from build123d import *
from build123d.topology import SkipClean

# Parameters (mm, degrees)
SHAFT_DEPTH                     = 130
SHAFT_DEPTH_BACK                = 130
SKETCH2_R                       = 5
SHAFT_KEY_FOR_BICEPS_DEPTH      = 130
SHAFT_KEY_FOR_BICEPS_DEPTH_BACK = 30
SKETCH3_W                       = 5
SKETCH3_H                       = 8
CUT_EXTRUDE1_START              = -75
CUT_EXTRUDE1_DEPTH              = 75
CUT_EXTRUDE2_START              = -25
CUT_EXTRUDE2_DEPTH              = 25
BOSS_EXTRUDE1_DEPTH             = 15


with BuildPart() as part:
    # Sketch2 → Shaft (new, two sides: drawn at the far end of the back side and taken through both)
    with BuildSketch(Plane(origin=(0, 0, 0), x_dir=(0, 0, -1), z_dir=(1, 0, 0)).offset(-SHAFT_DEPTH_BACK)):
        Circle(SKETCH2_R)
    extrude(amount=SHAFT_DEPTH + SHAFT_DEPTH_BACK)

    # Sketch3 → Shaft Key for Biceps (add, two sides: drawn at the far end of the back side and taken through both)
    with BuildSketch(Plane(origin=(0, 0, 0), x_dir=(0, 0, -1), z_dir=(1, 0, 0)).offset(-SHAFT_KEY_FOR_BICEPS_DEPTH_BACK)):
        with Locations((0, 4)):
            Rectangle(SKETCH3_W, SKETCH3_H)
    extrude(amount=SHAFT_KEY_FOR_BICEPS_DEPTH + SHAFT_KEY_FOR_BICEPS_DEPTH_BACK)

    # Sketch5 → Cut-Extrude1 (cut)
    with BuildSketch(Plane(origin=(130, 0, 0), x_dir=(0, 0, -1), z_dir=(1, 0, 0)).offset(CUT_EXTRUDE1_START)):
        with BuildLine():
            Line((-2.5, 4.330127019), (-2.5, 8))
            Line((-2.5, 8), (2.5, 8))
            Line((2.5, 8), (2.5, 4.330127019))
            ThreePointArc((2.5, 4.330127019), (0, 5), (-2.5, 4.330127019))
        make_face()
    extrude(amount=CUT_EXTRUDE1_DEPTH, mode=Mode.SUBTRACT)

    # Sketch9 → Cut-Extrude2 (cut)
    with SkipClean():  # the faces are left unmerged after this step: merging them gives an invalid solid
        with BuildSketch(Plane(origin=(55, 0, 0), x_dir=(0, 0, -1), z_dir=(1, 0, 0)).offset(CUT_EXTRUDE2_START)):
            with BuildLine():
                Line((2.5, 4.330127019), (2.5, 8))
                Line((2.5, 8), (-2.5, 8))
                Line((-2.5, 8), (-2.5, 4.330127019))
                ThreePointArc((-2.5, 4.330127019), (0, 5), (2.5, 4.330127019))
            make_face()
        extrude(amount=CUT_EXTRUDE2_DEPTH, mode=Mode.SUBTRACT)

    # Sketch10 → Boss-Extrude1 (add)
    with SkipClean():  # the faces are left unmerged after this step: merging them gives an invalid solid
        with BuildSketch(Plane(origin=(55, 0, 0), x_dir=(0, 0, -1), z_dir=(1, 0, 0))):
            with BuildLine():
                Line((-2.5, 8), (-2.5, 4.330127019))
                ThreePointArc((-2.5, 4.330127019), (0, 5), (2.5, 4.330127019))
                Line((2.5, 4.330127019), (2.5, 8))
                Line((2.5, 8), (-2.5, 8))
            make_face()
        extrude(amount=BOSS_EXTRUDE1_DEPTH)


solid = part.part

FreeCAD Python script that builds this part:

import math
import FreeCAD as App
import Part
import Sketcher

V = App.Vector


def add_polygon(sketch, points):
    """Adds a closed chain of lines whose ends are joined by coincident constraints."""
    first, n = sketch.GeometryCount, len(points)
    for a, b in zip(points, points[1:] + points[:1]):
        sketch.addGeometry(Part.LineSegment(App.Vector(*a, 0), App.Vector(*b, 0)), False)
    for i in range(n):
        sketch.addConstraint(Sketcher.Constraint("Coincident", first + i, 2, first + (i + 1) % n, 1))

doc = App.newDocument("Part")
params = doc.addObject("Spreadsheet::Sheet", "Params")
for row, (alias, value) in enumerate([
    ("sketch1_diameter", "10 mm"),
    ("pad1_length", "130 mm"),
    ("pad1_length2", "130 mm"),
    ("sketch2_width", "8 mm"),
    ("sketch2_height", "5 mm"),
    ("pad2_length", "130 mm"),
    ("pad2_length2", "30 mm"),
    ("sketch3_radius", "5 mm"),
    ("sketch3_height", "5 mm"),
    ("pocket1_length", "75 mm"),
    ("sketch4_radius", "5 mm"),
    ("sketch4_height", "5 mm"),
    ("pocket2_length", "25 mm"),
    ("sketch5_radius", "5 mm"),
    ("sketch5_height", "5 mm"),
    ("pad3_length", "15 mm"),
], start=1):
    params.set(f"A{row}", alias)
    params.set(f"B{row}", "=" + value)
    params.setAlias(f"B{row}", alias)

body = doc.addObject("PartDesign::Body", "Body")

# Sketch on YZ plane
sketch1 = doc.addObject("Sketcher::SketchObject", "Sketch")
body.addObject(sketch1)
sketch1.AttachmentSupport = (doc.YZ_Plane, [""])
sketch1.MapMode = "FlatFace"
sketch1.addGeometry(Part.Circle(V(0, 0, 0), V(0, 0, 1), 5), False)
sketch1.addConstraint([
    Sketcher.Constraint("Coincident", 0, 3, -1, 1),
    Sketcher.Constraint("Diameter", 0, 10.0),
])
sketch1.setExpression("Constraints[1]", "Params.sketch1_diameter")
pad1 = doc.addObject("PartDesign::Pad", "Pad")
body.addObject(pad1)
pad1.Profile = sketch1
pad1.Type = "TwoLengths"
pad1.setExpression("Length", "Params.pad1_length")
pad1.setExpression("Length2", "Params.pad1_length2")

# Sketch on YZ plane
sketch2 = doc.addObject("Sketcher::SketchObject", "Sketch001")
body.addObject(sketch2)
sketch2.AttachmentSupport = (doc.YZ_Plane, [""])
sketch2.MapMode = "FlatFace"
add_polygon(sketch2, [(8, 2), (0, 2), (0, -2), (8, -2)])  # lines 0-3
sketch2.addConstraint([
    Sketcher.Constraint("Horizontal", 0),
    Sketcher.Constraint("Vertical", 1),
    Sketcher.Constraint("Horizontal", 2),
    Sketcher.Constraint("Vertical", 3),
    Sketcher.Constraint("Symmetric", 0, 2, 1, 2, -1, 1),
    Sketcher.Constraint("DistanceX", 0, 2, 0, 1, 8.0),
    Sketcher.Constraint("DistanceY", 1, 2, 1, 1, 5.0),
])
sketch2.setExpression("Constraints[9]", "Params.sketch2_width")
sketch2.setExpression("Constraints[10]", "Params.sketch2_height")
pad2 = doc.addObject("PartDesign::Pad", "Pad001")
body.addObject(pad2)
pad2.Profile = sketch2
pad2.Type = "TwoLengths"
pad2.setExpression("Length", "Params.pad2_length")
pad2.setExpression("Length2", "Params.pad2_length2")

# Sketch on YZ plane
sketch3 = doc.addObject("Sketcher::SketchObject", "Sketch002")
body.addObject(sketch3)
sketch3.AttachmentSupport = (doc.YZ_Plane, [""])
sketch3.MapMode = "FlatFace"
sketch3.AttachmentOffset = App.Placement(V(0, 0, 55), App.Rotation())
sketch3.addGeometry([
    Part.LineSegment(V(8, 2.5, 0), V(4.3, 2.5, 0)),
    Part.ArcOfCircle(Part.Circle(V(0, 0, 0), V(0, 0, 1), 5), math.radians(-30), math.radians(30)),
    Part.LineSegment(V(4.3, -2.5, 0), V(8, -2.5, 0)),
    Part.LineSegment(V(8, -2.5, 0), V(8, 2.5, 0)),
], False)
sketch3.addConstraint([
    Sketcher.Constraint("Coincident", 0, 2, 1, 2),
    Sketcher.Constraint("Coincident", 1, 1, 2, 1),
    Sketcher.Constraint("Coincident", 2, 2, 3, 1),
    Sketcher.Constraint("Coincident", 3, 2, 0, 1),
    Sketcher.Constraint("Horizontal", 0),
    Sketcher.Constraint("Horizontal", 2),
    Sketcher.Constraint("Vertical", 3),
    Sketcher.Constraint("Coincident", 1, 3, -1, 1),
    Sketcher.Constraint("Vertical", 0, 2, 1, 1),
    Sketcher.Constraint("Radius", 1, 5.0),
    Sketcher.Constraint("DistanceY", 3, 1, 3, 2, 5.0),
    Sketcher.Constraint("DistanceX", -1, 1, 2, 2, 8.0),
])
sketch3.setExpression("Constraints[9]", "Params.sketch3_radius")
sketch3.setExpression("Constraints[10]", "Params.sketch3_height")
pocket1 = doc.addObject("PartDesign::Pocket", "Pocket")
body.addObject(pocket1)
pocket1.Profile = sketch3
pocket1.setExpression("Length", "Params.pocket1_length")
pocket1.Reversed = True

# Sketch on YZ plane
sketch4 = doc.addObject("Sketcher::SketchObject", "Sketch003")
body.addObject(sketch4)
sketch4.AttachmentSupport = (doc.YZ_Plane, [""])
sketch4.MapMode = "FlatFace"
sketch4.AttachmentOffset = App.Placement(V(0, 0, 30), App.Rotation())
sketch4.addGeometry([
    Part.LineSegment(V(4.3, -2.5, 0), V(8, -2.5, 0)),
    Part.LineSegment(V(8, -2.5, 0), V(8, 2.5, 0)),
    Part.LineSegment(V(8, 2.5, 0), V(4.3, 2.5, 0)),
    Part.ArcOfCircle(Part.Circle(V(0, 0, 0), V(0, 0, 1), 5), math.radians(-30), math.radians(30)),
], False)
sketch4.addConstraint([
    Sketcher.Constraint("Coincident", 0, 2, 1, 1),
    Sketcher.Constraint("Coincident", 1, 2, 2, 1),
    Sketcher.Constraint("Coincident", 2, 2, 3, 2),
    Sketcher.Constraint("Coincident", 3, 1, 0, 1),
    Sketcher.Constraint("Horizontal", 0),
    Sketcher.Constraint("Vertical", 1),
    Sketcher.Constraint("Horizontal", 2),
    Sketcher.Constraint("Coincident", 3, 3, -1, 1),
    Sketcher.Constraint("Vertical", 2, 2, 3, 1),
    Sketcher.Constraint("Radius", 3, 5.0),
    Sketcher.Constraint("DistanceY", 1, 1, 1, 2, 5.0),
    Sketcher.Constraint("DistanceX", -1, 1, 0, 2, 8.0),
])
sketch4.setExpression("Constraints[9]", "Params.sketch4_radius")
sketch4.setExpression("Constraints[10]", "Params.sketch4_height")
pocket2 = doc.addObject("PartDesign::Pocket", "Pocket001")
body.addObject(pocket2)
pocket2.Profile = sketch4
pocket2.setExpression("Length", "Params.pocket2_length")
pocket2.Reversed = True

# Sketch on YZ plane
sketch5 = doc.addObject("Sketcher::SketchObject", "Sketch004")
body.addObject(sketch5)
sketch5.AttachmentSupport = (doc.YZ_Plane, [""])
sketch5.MapMode = "FlatFace"
sketch5.AttachmentOffset = App.Placement(V(0, 0, 55), App.Rotation())
sketch5.addGeometry([
    Part.LineSegment(V(8, 2.5, 0), V(4.3, 2.5, 0)),
    Part.ArcOfCircle(Part.Circle(V(0, 0, 0), V(0, 0, 1), 5), math.radians(-30), math.radians(30)),
    Part.LineSegment(V(4.3, -2.5, 0), V(8, -2.5, 0)),
    Part.LineSegment(V(8, -2.5, 0), V(8, 2.5, 0)),
], False)
sketch5.addConstraint([
    Sketcher.Constraint("Coincident", 0, 2, 1, 2),
    Sketcher.Constraint("Coincident", 1, 1, 2, 1),
    Sketcher.Constraint("Coincident", 2, 2, 3, 1),
    Sketcher.Constraint("Coincident", 3, 2, 0, 1),
    Sketcher.Constraint("Horizontal", 0),
    Sketcher.Constraint("Horizontal", 2),
    Sketcher.Constraint("Vertical", 3),
    Sketcher.Constraint("Coincident", 1, 3, -1, 1),
    Sketcher.Constraint("Vertical", 0, 2, 1, 1),
    Sketcher.Constraint("Radius", 1, 5.0),
    Sketcher.Constraint("DistanceY", 3, 1, 3, 2, 5.0),
    Sketcher.Constraint("DistanceX", -1, 1, 2, 2, 8.0),
])
sketch5.setExpression("Constraints[9]", "Params.sketch5_radius")
sketch5.setExpression("Constraints[10]", "Params.sketch5_height")
pad3 = doc.addObject("PartDesign::Pad", "Pad002")
body.addObject(pad3)
pad3.Profile = sketch5
pad3.setExpression("Length", "Params.pad3_length")

doc.recompute()
